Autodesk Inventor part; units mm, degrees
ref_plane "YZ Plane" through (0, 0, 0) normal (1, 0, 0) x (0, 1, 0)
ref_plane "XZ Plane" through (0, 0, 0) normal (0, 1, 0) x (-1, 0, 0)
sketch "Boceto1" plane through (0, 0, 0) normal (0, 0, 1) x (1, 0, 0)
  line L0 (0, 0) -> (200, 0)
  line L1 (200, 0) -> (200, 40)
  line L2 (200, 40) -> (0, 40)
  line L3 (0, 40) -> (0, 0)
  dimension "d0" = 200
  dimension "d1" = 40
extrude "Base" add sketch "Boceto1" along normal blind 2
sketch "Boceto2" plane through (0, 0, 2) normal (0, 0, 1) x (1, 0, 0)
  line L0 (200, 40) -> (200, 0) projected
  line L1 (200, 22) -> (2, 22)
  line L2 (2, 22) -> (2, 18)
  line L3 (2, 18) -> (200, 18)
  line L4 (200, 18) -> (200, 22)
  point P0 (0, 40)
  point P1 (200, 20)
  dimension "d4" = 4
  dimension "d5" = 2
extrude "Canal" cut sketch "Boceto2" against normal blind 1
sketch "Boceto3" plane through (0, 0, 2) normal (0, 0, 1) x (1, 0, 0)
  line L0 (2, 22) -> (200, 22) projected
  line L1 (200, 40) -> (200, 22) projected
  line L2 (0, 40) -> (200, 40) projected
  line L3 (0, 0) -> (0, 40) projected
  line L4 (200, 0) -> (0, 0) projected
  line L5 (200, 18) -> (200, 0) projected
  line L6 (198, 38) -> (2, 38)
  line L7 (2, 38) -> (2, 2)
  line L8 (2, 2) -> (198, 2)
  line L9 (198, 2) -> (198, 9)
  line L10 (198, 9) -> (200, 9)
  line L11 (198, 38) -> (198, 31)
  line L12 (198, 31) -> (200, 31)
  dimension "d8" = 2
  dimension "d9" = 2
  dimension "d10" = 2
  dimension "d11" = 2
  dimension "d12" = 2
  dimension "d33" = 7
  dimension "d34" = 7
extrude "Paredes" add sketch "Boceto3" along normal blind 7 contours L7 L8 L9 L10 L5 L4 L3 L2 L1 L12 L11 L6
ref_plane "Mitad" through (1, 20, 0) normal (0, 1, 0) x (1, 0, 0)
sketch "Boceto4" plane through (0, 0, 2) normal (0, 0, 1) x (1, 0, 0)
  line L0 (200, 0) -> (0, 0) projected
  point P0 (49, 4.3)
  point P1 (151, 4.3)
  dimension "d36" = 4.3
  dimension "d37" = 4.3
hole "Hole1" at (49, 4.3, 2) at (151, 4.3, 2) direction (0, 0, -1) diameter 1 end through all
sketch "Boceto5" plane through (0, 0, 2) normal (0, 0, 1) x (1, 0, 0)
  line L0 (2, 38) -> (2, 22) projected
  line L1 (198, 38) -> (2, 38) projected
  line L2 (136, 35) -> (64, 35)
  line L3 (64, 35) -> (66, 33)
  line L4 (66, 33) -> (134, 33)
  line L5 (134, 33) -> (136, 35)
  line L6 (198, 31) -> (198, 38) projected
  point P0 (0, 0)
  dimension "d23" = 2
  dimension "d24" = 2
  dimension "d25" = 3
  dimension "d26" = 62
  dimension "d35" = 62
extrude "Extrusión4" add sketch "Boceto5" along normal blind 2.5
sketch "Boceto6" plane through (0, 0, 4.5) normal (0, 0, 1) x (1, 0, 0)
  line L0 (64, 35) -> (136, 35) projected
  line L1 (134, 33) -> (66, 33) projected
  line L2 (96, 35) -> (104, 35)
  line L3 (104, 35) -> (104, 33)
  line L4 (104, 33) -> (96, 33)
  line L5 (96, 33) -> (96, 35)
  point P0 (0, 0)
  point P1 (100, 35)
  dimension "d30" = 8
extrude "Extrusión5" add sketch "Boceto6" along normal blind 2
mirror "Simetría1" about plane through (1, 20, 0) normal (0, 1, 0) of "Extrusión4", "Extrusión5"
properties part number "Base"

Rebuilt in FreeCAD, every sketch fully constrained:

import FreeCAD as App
import Part
import Sketcher
from FreeCAD import Vector


def add_polygon(sketch, points):
    """Adds a closed chain of lines whose ends are joined by coincident constraints."""
    first, n = sketch.GeometryCount, len(points)
    for a, b in zip(points, points[1:] + points[:1]):
        sketch.addGeometry(Part.LineSegment(App.Vector(*a, 0), App.Vector(*b, 0)), False)
    for i in range(n):
        sketch.addConstraint(Sketcher.Constraint("Coincident", first + i, 2, first + (i + 1) % n, 1))

doc = App.newDocument("Part")
body = doc.addObject("PartDesign::Body", "Body")

# Sketch on XY plane
sketch1 = body.newObject("Sketcher::SketchObject", "Sketch")
sketch1.AttachmentSupport = (doc.getObject("XY_Plane"), [""])
sketch1.MapMode = "FlatFace"
add_polygon(sketch1, [(0, 40), (0, 0), (200, 0), (200, 40)])  # lines 0-3
sketch1.addConstraint([
    Sketcher.Constraint("Vertical", 0),
    Sketcher.Constraint("Horizontal", 1),
    Sketcher.Constraint("Vertical", 2),
    Sketcher.Constraint("Horizontal", 3),
    Sketcher.Constraint("Coincident", 0, 2, -1, 1),
    Sketcher.Constraint("DistanceX", 1, 1, 1, 2, 200.0),
    Sketcher.Constraint("DistanceY", 0, 2, 0, 1, 40.0),
])
pad1 = body.newObject("PartDesign::Pad", "Pad")
pad1.Profile = sketch1
pad1.Length = 2

# Sketch on XY plane
sketch2 = body.newObject("Sketcher::SketchObject", "Sketch001")
sketch2.AttachmentSupport = (doc.getObject("XY_Plane"), [""])
sketch2.MapMode = "FlatFace"
sketch2.AttachmentOffset = App.Placement(Vector(0, 0, 2), App.Rotation())
add_polygon(sketch2, [(200, 18), (200, 22), (2, 22), (2, 18)])  # lines 0-3
sketch2.addConstraint([
    Sketcher.Constraint("Vertical", 0),
    Sketcher.Constraint("Horizontal", 1),
    Sketcher.Constraint("Vertical", 2),
    Sketcher.Constraint("Horizontal", 3),
    Sketcher.Constraint("DistanceY", 0, 1, 0, 2, 4.0),
    Sketcher.Constraint("DistanceX", -1, 1, 1, 2, 2.0),
    Sketcher.Constraint("DistanceX", 1, 2, 1, 1, 198.0),
    Sketcher.Constraint("DistanceY", -1, 1, 0, 2, 22.0),
])
pocket1 = body.newObject("PartDesign::Pocket", "Pocket")
pocket1.Profile = sketch2
pocket1.Length = 1

# Sketch on XY plane
sketch3 = body.newObject("Sketcher::SketchObject", "Sketch002")
sketch3.AttachmentSupport = (doc.getObject("XY_Plane"), [""])
sketch3.MapMode = "FlatFace"
sketch3.AttachmentOffset = App.Placement(Vector(0, 0, 2), App.Rotation())
add_polygon(sketch3, [(2, 2), (2, 38), (198, 38), (198, 31), (200, 31), (200, 40), (0, 40), (0, 0), (200, 0), (200, 9), (198, 9), (198, 2)])  # lines 0-11
sketch3.addConstraint([
    Sketcher.Constraint("Vertical", 0),
    Sketcher.Constraint("Horizontal", 1),
    Sketcher.Constraint("Vertical", 2),
    Sketcher.Constraint("Horizontal", 3),
    Sketcher.Constraint("Vertical", 4),
    Sketcher.Constraint("Horizontal", 5),
    Sketcher.Constraint("Vertical", 6),
    Sketcher.Constraint("Horizontal", 7),
    Sketcher.Constraint("Vertical", 8),
    Sketcher.Constraint("Horizontal", 9),
    Sketcher.Constraint("Vertical", 10),
    Sketcher.Constraint("Horizontal", 11),
    Sketcher.Constraint("Coincident", 6, 2, -1, 1),
    Sketcher.Constraint("Vertical", 4, 2, 7, 2),
    Sketcher.Constraint("Vertical", 2, 2, 9, 2),
    Sketcher.Constraint("Equal", 4, 8),
    Sketcher.Constraint("Equal", 2, 10),
    Sketcher.Constraint("DistanceX", 3, 1, 3, 2, 2.0),
    Sketcher.Constraint("DistanceY", 2, 2, 2, 1, 7.0),
    Sketcher.Constraint("DistanceX", -1, 1, 0, 2, 2.0),
    Sketcher.Constraint("DistanceY", -1, 1, 10, 2, 2.0),
    Sketcher.Constraint("DistanceX", 1, 1, 1, 2, 196.0),
    Sketcher.Constraint("DistanceY", 0, 1, 0, 2, 36.0),
])
pad2 = body.newObject("PartDesign::Pad", "Pad001")
pad2.Profile = sketch3
pad2.Length = 7

# Sketch on XY plane
sketch4 = body.newObject("Sketcher::SketchObject", "Sketch003")
sketch4.AttachmentSupport = (doc.getObject("XY_Plane"), [""])
sketch4.MapMode = "FlatFace"
sketch4.AttachmentOffset = App.Placement(Vector(0, 0, 2), App.Rotation())
sketch4.addGeometry([
    Part.Circle(Vector(49, 4.3, 0), Vector(0, 0, 1), 0.5),
    Part.Circle(Vector(151, 4.3, 0), Vector(0, 0, 1), 0.5),
], False)
sketch4.addConstraint([
    Sketcher.Constraint("Equal", 0, 1),
    Sketcher.Constraint("Horizontal", 0, 3, 1, 3),
    Sketcher.Constraint("Diameter", 0, 1.0),
    Sketcher.Constraint("DistanceX", -1, 1, 0, 3, 49.0),
    Sketcher.Constraint("DistanceX", -1, 1, 1, 3, 151.0),
    Sketcher.Constraint("DistanceY", -1, 1, 0, 3, 4.3),
])
doc.recompute()
hole = body.newObject("PartDesign::Hole", "Hole")
hole.Profile = sketch4
hole.ThreadType = "None"
hole.Diameter = 1
hole.DepthType = "ThroughAll"

# Sketch on XY plane
sketch5 = body.newObject("Sketcher::SketchObject", "Sketch004")
sketch5.AttachmentSupport = (doc.getObject("XY_Plane"), [""])
sketch5.MapMode = "FlatFace"
sketch5.AttachmentOffset = App.Placement(Vector(0, 0, 2), App.Rotation())
add_polygon(sketch5, [(134, 33), (136, 35), (64, 35), (66, 33)])  # lines 0-3
sketch5.addConstraint([
    Sketcher.Constraint("Horizontal", 1),
    Sketcher.Constraint("Horizontal", 3),
    Sketcher.Constraint("Perpendicular", 0, 2),
    Sketcher.Constraint("Equal", 0, 2),
    Sketcher.Constraint("DistanceX", 1, 2, 2, 2, 2.0),
    Sketcher.Constraint("DistanceX", 1, 2, 1, 1, 72.0),
    Sketcher.Constraint("DistanceX", -1, 1, 0, 2, 136.0),
    Sketcher.Constraint("DistanceY", -1, 1, 0, 2, 35.0),
])
pad3 = body.newObject("PartDesign::Pad", "Pad002")
pad3.Profile = sketch5
pad3.Length = 2.5

# Sketch on XY plane
sketch6 = body.newObject("Sketcher::SketchObject", "Sketch005")
sketch6.AttachmentSupport = (doc.getObject("XY_Plane"), [""])
sketch6.MapMode = "FlatFace"
sketch6.AttachmentOffset = App.Placement(Vector(0, 0, 4.5), App.Rotation())
add_polygon(sketch6, [(104, 35), (96, 35), (96, 33), (104, 33)])  # lines 0-3
sketch6.addConstraint([
    Sketcher.Constraint("Horizontal", 0),
    Sketcher.Constraint("Vertical", 1),
    Sketcher.Constraint("Horizontal", 2),
    Sketcher.Constraint("Vertical", 3),
    Sketcher.Constraint("DistanceX", 0, 2, 0, 1, 8.0),
    Sketcher.Constraint("DistanceY", 1, 2, 1, 1, 2.0),
    Sketcher.Constraint("DistanceX", -1, 1, 0, 2, 96.0),
    Sketcher.Constraint("DistanceY", -1, 1, 0, 2, 35.0),
])
pad4 = body.newObject("PartDesign::Pad", "Pad003")
pad4.Profile = sketch6
pad4.Length = 2
doc.recompute()

datumplane = body.newObject("PartDesign::Plane", "DatumPlane")
datumplane.AttachmentSupport = (doc.getObject("XZ_Plane"), [""])
datumplane.MapMode = "FlatFace"
datumplane.AttachmentOffset = App.Placement(Vector(0, 0, -20), App.Rotation())
mirrored = body.newObject("PartDesign::Mirrored", "Mirrored")
mirrored.Originals = [pad3, pad4]
mirrored.MirrorPlane = (datumplane, [""])
body.Tip = mirrored

doc.recompute()
